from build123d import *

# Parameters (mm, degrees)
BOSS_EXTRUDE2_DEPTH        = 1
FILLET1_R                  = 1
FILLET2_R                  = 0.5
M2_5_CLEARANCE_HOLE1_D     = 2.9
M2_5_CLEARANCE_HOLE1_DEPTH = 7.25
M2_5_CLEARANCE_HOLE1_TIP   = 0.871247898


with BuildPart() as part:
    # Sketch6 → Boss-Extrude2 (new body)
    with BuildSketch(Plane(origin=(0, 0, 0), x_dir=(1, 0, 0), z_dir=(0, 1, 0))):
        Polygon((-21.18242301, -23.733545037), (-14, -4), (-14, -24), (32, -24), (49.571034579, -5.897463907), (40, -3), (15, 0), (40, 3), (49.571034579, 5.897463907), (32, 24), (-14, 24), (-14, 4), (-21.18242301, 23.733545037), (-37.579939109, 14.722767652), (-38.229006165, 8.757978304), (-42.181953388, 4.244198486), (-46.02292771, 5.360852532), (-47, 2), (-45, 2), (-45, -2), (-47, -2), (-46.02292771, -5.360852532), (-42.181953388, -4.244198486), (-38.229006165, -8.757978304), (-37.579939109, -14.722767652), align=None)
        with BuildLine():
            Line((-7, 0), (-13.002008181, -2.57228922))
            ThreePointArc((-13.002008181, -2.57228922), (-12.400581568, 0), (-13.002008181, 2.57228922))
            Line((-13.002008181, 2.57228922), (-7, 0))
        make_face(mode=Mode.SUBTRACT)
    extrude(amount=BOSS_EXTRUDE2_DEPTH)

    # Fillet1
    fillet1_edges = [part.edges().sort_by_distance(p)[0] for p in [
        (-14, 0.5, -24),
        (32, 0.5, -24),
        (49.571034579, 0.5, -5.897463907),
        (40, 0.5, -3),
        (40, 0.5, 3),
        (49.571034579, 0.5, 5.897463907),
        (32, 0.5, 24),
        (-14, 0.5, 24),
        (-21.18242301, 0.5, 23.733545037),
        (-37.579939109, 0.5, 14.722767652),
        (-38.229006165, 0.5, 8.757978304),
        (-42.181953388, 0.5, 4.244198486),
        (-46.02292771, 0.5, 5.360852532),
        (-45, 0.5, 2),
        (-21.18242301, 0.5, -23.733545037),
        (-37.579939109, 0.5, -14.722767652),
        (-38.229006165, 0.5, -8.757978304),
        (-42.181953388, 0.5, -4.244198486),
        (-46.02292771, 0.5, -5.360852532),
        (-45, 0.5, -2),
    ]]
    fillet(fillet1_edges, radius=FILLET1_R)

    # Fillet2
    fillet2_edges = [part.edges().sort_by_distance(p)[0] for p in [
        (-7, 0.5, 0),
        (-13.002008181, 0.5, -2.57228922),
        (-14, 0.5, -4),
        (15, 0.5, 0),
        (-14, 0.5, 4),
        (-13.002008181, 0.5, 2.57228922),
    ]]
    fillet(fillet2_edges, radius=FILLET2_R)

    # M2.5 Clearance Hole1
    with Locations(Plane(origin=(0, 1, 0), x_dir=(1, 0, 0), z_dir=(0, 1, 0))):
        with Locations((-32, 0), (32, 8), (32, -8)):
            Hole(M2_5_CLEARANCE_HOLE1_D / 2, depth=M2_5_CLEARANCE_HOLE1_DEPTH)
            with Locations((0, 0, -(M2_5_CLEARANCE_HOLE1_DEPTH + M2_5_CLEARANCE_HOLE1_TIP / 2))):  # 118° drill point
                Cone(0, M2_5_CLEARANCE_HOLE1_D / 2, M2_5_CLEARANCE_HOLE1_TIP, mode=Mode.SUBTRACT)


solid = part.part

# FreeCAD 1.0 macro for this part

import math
import FreeCAD as App
import Part
import Sketcher
Q = App.Units.Quantity


def edges_at(feature, points):
    """Names of the edges that pass closest to the given points."""
    edges = feature.Shape.Edges
    near = lambda p: min(range(len(edges)), key=lambda i: edges[i].distToShape(Part.Vertex(*p))[0])
    return sorted({f"Edge{near(p) + 1}" for p in points})

doc = App.newDocument("Part")
params = doc.addObject("Spreadsheet::Sheet", "Params")
for row, (alias, value) in enumerate([
    ("sketch1_width", "46 mm"),
    ("sketch1_width2", "2 mm"),
    ("sketch1_height", "20 mm"),
    ("sketch1_height2", "4 mm"),
    ("sketch1_length", "21 mm"),
    ("pad1_length", "1 mm"),
    ("fillet_radius", "1 mm"),
    ("fillet2_radius", "0.5 mm"),
    ("sketch2_diameter", "2.9 mm"),
    ("hole_diameter", "2.9 mm"),
    ("hole_depth", "7.25 mm"),
], start=1):
    params.set(f"A{row}", alias)
    params.set(f"B{row}", "=" + value)
    params.setAlias(f"B{row}", alias)

body = doc.addObject("PartDesign::Body", "Body")

# Sketch on XZ plane
sketch1 = doc.addObject("Sketcher::SketchObject", "Sketch")
body.addObject(sketch1)
sketch1.AttachmentSupport = (doc.XZ_Plane, [""])
sketch1.MapMode = "FlatFace"
sketch1.addGeometry([
    Part.LineSegment(App.Vector(-21.2, 23.7, 0), App.Vector(-14, 4, 0)),  # 0
    Part.LineSegment(App.Vector(-14, 4, 0), App.Vector(-14, 24, 0)),  # 1
    Part.LineSegment(App.Vector(-14, 24, 0), App.Vector(32, 24, 0)),  # 2
    Part.LineSegment(App.Vector(32, 24, 0), App.Vector(49.6, 5.9, 0)),  # 3
    Part.LineSegment(App.Vector(49.6, 5.9, 0), App.Vector(40, 3, 0)),  # 4
    Part.LineSegment(App.Vector(40, 3, 0), App.Vector(15, 0, 0)),  # 5
    Part.LineSegment(App.Vector(15, 0, 0), App.Vector(40, -3, 0)),  # 6
    Part.LineSegment(App.Vector(40, -3, 0), App.Vector(49.6, -5.9, 0)),  # 7
    Part.LineSegment(App.Vector(49.6, -5.9, 0), App.Vector(32, -24, 0)),  # 8
    Part.LineSegment(App.Vector(32, -24, 0), App.Vector(-14, -24, 0)),  # 9
    Part.LineSegment(App.Vector(-14, -24, 0), App.Vector(-14, -4, 0)),  # 10
    Part.LineSegment(App.Vector(-14, -4, 0), App.Vector(-21.2, -23.7, 0)),  # 11
    Part.LineSegment(App.Vector(-21.2, -23.7, 0), App.Vector(-37.6, -14.7, 0)),  # 12
    Part.LineSegment(App.Vector(-37.6, -14.7, 0), App.Vector(-38.2, -8.8, 0)),  # 13
    Part.LineSegment(App.Vector(-38.2, -8.8, 0), App.Vector(-42.2, -4.2, 0)),  # 14
    Part.LineSegment(App.Vector(-42.2, -4.2, 0), App.Vector(-46, -5.4, 0)),  # 15
    Part.LineSegment(App.Vector(-46, -5.4, 0), App.Vector(-47, -2, 0)),  # 16
    Part.LineSegment(App.Vector(-47, -2, 0), App.Vector(-45, -2, 0)),  # 17
    Part.LineSegment(App.Vector(-45, -2, 0), App.Vector(-45, 2, 0)),  # 18
    Part.LineSegment(App.Vector(-45, 2, 0), App.Vector(-47, 2, 0)),  # 19
    Part.LineSegment(App.Vector(-47, 2, 0), App.Vector(-46, 5.4, 0)),  # 20
    Part.LineSegment(App.Vector(-46, 5.4, 0), App.Vector(-42.2, 4.2, 0)),  # 21
    Part.LineSegment(App.Vector(-42.2, 4.2, 0), App.Vector(-38.2, 8.8, 0)),  # 22
    Part.LineSegment(App.Vector(-38.2, 8.8, 0), App.Vector(-37.6, 14.7, 0)),  # 23
    Part.LineSegment(App.Vector(-37.6, 14.7, 0), App.Vector(-21.2, 23.7, 0)),  # 24
    Part.LineSegment(App.Vector(-13, -2.6, 0), App.Vector(-7, 0, 0)),  # 25
    Part.LineSegment(App.Vector(-7, 0, 0), App.Vector(-13, 2.6, 0)),  # 26
    Part.ArcOfCircle(Part.Circle(App.Vector(-18.2, 0, 0), App.Vector(0, 0, 1), 5.8), math.radians(-26), math.radians(26)),  # 27
], False)
sketch1.addConstraint([
    Sketcher.Constraint("Coincident", 0, 2, 1, 1),
    Sketcher.Constraint("Coincident", 1, 2, 2, 1),
    Sketcher.Constraint("Coincident", 2, 2, 3, 1),
    Sketcher.Constraint("Coincident", 3, 2, 4, 1),
    Sketcher.Constraint("Coincident", 4, 2, 5, 1),
    Sketcher.Constraint("Coincident", 5, 2, 6, 1),
    Sketcher.Constraint("Coincident", 6, 2, 7, 1),
    Sketcher.Constraint("Coincident", 7, 2, 8, 1),
    Sketcher.Constraint("Coincident", 8, 2, 9, 1),
    Sketcher.Constraint("Coincident", 9, 2, 10, 1),
    Sketcher.Constraint("Coincident", 10, 2, 11, 1),
    Sketcher.Constraint("Coincident", 11, 2, 12, 1),
    Sketcher.Constraint("Coincident", 12, 2, 13, 1),
    Sketcher.Constraint("Coincident", 13, 2, 14, 1),
    Sketcher.Constraint("Coincident", 14, 2, 15, 1),
    Sketcher.Constraint("Coincident", 15, 2, 16, 1),
    Sketcher.Constraint("Coincident", 16, 2, 17, 1),
    Sketcher.Constraint("Coincident", 17, 2, 18, 1),
    Sketcher.Constraint("Coincident", 18, 2, 19, 1),
    Sketcher.Constraint("Coincident", 19, 2, 20, 1),
    Sketcher.Constraint("Coincident", 20, 2, 21, 1),
    Sketcher.Constraint("Coincident", 21, 2, 22, 1),
    Sketcher.Constraint("Coincident", 22, 2, 23, 1),
    Sketcher.Constraint("Coincident", 23, 2, 24, 1),
    Sketcher.Constraint("Coincident", 24, 2, 0, 1),
    Sketcher.Constraint("Coincident", 25, 2, 26, 1),
    Sketcher.Constraint("Coincident", 26, 2, 27, 2),
    Sketcher.Constraint("Coincident", 27, 1, 25, 1),
    Sketcher.Constraint("Vertical", 1),
    Sketcher.Constraint("Horizontal", 2),
    Sketcher.Constraint("Horizontal", 9),
    Sketcher.Constraint("Vertical", 10),
    Sketcher.Constraint("Horizontal", 17),
    Sketcher.Constraint("Vertical", 18),
    Sketcher.Constraint("Horizontal", 19),
    Sketcher.Constraint("Symmetric", 4, 2, 6, 2, -1),
    Sketcher.Constraint("Symmetric", 3, 2, 7, 2, -1),
    Sketcher.Constraint("Symmetric", 2, 2, 8, 2, -1),
    Sketcher.Constraint("Symmetric", 0, 2, 10, 2, -1),
    Sketcher.Constraint("Symmetric", 16, 2, 19, 2, -1),
    Sketcher.Constraint("Symmetric", 15, 2, 20, 2, -1),
    Sketcher.Constraint("Symmetric", 14, 2, 21, 2, -1),
    Sketcher.Constraint("Symmetric", 13, 2, 22, 2, -1),
    Sketcher.Constraint("Symmetric", 12, 2, 23, 2, -1),
    Sketcher.Constraint("Symmetric", 11, 2, 24, 2, -1),
    Sketcher.Constraint("Symmetric", 26, 2, 27, 1, -1),
    Sketcher.Constraint("PointOnObject", 5, 2, -1),
    Sketcher.Constraint("PointOnObject", 25, 2, -1),
    Sketcher.Constraint("Perpendicular", 15, 16),
    Sketcher.Constraint("Equal", 13, 14),
    Sketcher.Constraint("DistanceX", 2, 1, 2, 2, 46.0),
    Sketcher.Constraint("DistanceX", 17, 1, 17, 2, 2.0),
    Sketcher.Constraint("DistanceY", 1, 1, 1, 2, 20.0),
    Sketcher.Constraint("DistanceY", 18, 1, 18, 2, 4.0),
    Sketcher.Constraint("Angle", 0, Q("-70 deg")),
    Sketcher.Constraint("Distance", 0, 21.0),
    Sketcher.Constraint("Distance", 4, 10.0),
    Sketcher.Constraint("Distance", 13, 6.0),
    Sketcher.Constraint("Distance", 15, 4.0),
    Sketcher.Constraint("DistanceX", 0, 2, -1, 1, 14.0),
    Sketcher.Constraint("DistanceY", -1, 1, 0, 2, 4.0),
    Sketcher.Constraint("DistanceX", -1, 1, 4, 2, 40.0),
    Sketcher.Constraint("DistanceY", -1, 1, 4, 2, 3.0),
    Sketcher.Constraint("DistanceX", -1, 1, 5, 2, 15.0),
    Sketcher.Constraint("DistanceX", 16, 2, -1, 1, 47.0),
    Sketcher.Constraint("DistanceX", 25, 2, -1, 1, 7.0),
    Sketcher.Constraint("Distance", 16, 3.5),
    Sketcher.Constraint("Radius", 27, 5.801527),
    Sketcher.Constraint("DistanceY", 14, 2, -1, 1, 4.244198),
    Sketcher.Constraint("DistanceX", 27, 3, 26, 2, 5.200101),
    Sketcher.Constraint("Distance", 12, 18.710228),
    Sketcher.Constraint("Distance", 25, 6.52999),
    Sketcher.Constraint("DistanceX", 12, 2, -1, 1, 37.579939),
    Sketcher.Constraint("Distance", 3, 25.227823),
])
sketch1.setExpression("Constraints[50]", "Params.sketch1_width")
sketch1.setExpression("Constraints[51]", "Params.sketch1_width2")
sketch1.setExpression("Constraints[52]", "Params.sketch1_height")
sketch1.setExpression("Constraints[53]", "Params.sketch1_height2")
sketch1.setExpression("Constraints[55]", "Params.sketch1_length")
pad1 = doc.addObject("PartDesign::Pad", "Pad")
body.addObject(pad1)
pad1.Profile = sketch1
pad1.setExpression("Length", "Params.pad1_length")
pad1.Reversed = True
doc.recompute()

fillet = doc.addObject("PartDesign::Fillet", "Fillet")
body.addObject(fillet)
fillet.Base = (pad1, edges_at(pad1, [
    (-14, 0.5, -24),
    (32, 0.5, -24),
    (49.571, 0.5, -5.897),
    (40, 0.5, -3),
    (40, 0.5, 3),
    (49.571, 0.5, 5.897),
    (32, 0.5, 24),
    (-14, 0.5, 24),
    (-21.182, 0.5, 23.734),
    (-37.58, 0.5, 14.723),
    (-38.229, 0.5, 8.758),
    (-42.182, 0.5, 4.244),
    (-46.023, 0.5, 5.361),
    (-45, 0.5, 2),
    (-21.182, 0.5, -23.734),
    (-37.58, 0.5, -14.723),
    (-38.229, 0.5, -8.758),
    (-42.182, 0.5, -4.244),
    (-46.023, 0.5, -5.361),
    (-45, 0.5, -2),
]))
fillet.setExpression("Radius", "Params.fillet_radius")
doc.recompute()

fillet2 = doc.addObject("PartDesign::Fillet", "Fillet001")
body.addObject(fillet2)
fillet2.Base = (fillet, edges_at(fillet, [
    (-7, 0.5, 0),
    (-13.002, 0.5, -2.572),
    (-14, 0.5, -4),
    (15, 0.5, 0),
    (-14, 0.5, 4),
    (-13.002, 0.5, 2.572),
]))
fillet2.setExpression("Radius", "Params.fillet2_radius")

# Sketch on XZ plane
sketch2 = doc.addObject("Sketcher::SketchObject", "Sketch001")
body.addObject(sketch2)
sketch2.AttachmentSupport = (doc.XZ_Plane, [""])
sketch2.MapMode = "FlatFace"
sketch2.AttachmentOffset = App.Placement(App.Vector(0, 0, -1), App.Rotation())
sketch2.addGeometry([
    Part.Circle(App.Vector(-32, 0, 0), App.Vector(0, 0, 1), 1.4),
    Part.Circle(App.Vector(32, -8, 0), App.Vector(0, 0, 1), 1.4),
    Part.Circle(App.Vector(32, 8, 0), App.Vector(0, 0, 1), 1.4),
], False)
sketch2.addConstraint([
    Sketcher.Constraint("Equal", 0, 1),
    Sketcher.Constraint("Equal", 1, 2),
    Sketcher.Constraint("Symmetric", 1, 3, 2, 3, -1),
    Sketcher.Constraint("PointOnObject", 0, 3, -1),
    Sketcher.Constraint("Diameter", 0, 2.9),
    Sketcher.Constraint("DistanceX", 0, 3, -1, 1, 32.0),
    Sketcher.Constraint("DistanceX", -1, 1, 1, 3, 32.0),
    Sketcher.Constraint("DistanceY", 1, 3, -1, 1, 8.0),
])
sketch2.setExpression("Constraints[4]", "Params.sketch2_diameter")
doc.recompute()
hole = doc.addObject("PartDesign::Hole", "Hole")
body.addObject(hole)
hole.Profile = sketch2
hole.ThreadType = "None"
hole.setExpression("Diameter", "Params.hole_diameter")
hole.DepthType = "Dimension"
hole.setExpression("Depth", "Params.hole_depth")
hole.DrillPoint = "Angled"
hole.DrillPointAngle = 118
hole.Reversed = True

doc.recompute()
